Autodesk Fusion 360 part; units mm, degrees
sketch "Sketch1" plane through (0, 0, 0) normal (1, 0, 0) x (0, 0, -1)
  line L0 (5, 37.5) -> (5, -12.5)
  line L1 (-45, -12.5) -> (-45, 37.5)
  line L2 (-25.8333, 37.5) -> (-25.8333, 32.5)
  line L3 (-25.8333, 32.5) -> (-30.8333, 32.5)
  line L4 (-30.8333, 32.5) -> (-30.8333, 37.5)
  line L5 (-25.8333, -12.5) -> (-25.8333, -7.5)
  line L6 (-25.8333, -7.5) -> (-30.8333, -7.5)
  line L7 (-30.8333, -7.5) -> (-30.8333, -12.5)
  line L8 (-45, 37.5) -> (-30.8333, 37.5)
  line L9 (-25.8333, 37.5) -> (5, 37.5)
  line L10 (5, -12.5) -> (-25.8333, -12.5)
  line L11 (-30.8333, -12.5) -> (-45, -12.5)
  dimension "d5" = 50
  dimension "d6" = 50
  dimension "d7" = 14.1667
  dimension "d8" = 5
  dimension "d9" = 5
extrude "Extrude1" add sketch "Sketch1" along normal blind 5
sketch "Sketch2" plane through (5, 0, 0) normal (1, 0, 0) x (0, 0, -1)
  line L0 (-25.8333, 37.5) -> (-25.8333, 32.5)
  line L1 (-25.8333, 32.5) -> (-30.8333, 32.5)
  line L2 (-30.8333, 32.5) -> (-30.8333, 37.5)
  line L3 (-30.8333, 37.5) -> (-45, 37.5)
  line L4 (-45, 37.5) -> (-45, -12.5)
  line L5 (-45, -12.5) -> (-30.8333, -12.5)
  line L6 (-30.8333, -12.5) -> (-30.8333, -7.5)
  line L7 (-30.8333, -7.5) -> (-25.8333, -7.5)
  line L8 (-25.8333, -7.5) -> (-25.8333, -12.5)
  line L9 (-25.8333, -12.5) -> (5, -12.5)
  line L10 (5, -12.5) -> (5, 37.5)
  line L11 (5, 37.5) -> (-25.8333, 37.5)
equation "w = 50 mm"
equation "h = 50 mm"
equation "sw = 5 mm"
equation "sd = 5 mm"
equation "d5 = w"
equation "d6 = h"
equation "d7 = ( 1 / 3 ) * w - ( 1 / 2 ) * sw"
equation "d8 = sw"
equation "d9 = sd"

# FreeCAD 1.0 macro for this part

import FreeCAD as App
import Part
import Sketcher
from FreeCAD import Vector
Q = App.Units.Quantity


def add_polygon(sketch, points):
    """Adds a closed chain of lines whose ends are joined by coincident constraints."""
    first, n = sketch.GeometryCount, len(points)
    for a, b in zip(points, points[1:] + points[:1]):
        sketch.addGeometry(Part.LineSegment(App.Vector(*a, 0), App.Vector(*b, 0)), False)
    for i in range(n):
        sketch.addConstraint(Sketcher.Constraint("Coincident", first + i, 2, first + (i + 1) % n, 1))

doc = App.newDocument("Part")
body = doc.addObject("PartDesign::Body", "Body")

# Sketch on YZ plane
sketch1 = body.newObject("Sketcher::SketchObject", "Sketch")
sketch1.AttachmentSupport = (doc.getObject("YZ_Plane"), [""])
sketch1.MapMode = "FlatFace"
add_polygon(sketch1, [(-12.5, -5), (37.5, -5), (37.5, 25.8333), (32.5, 25.8333), (32.5, 30.8333), (37.5, 30.8333), (37.5, 45), (-12.5, 45), (-12.5, 30.8333), (-7.5, 30.8333), (-7.5, 25.8333), (-12.5, 25.8333)])  # lines 0-11
sketch1.addConstraint([
    Sketcher.Constraint("Horizontal", 0),
    Sketcher.Constraint("Vertical", 1),
    Sketcher.Constraint("Horizontal", 2),
    Sketcher.Constraint("Vertical", 3),
    Sketcher.Constraint("Horizontal", 4),
    Sketcher.Constraint("Vertical", 5),
    Sketcher.Constraint("Horizontal", 6),
    Sketcher.Constraint("Vertical", 7),
    Sketcher.Constraint("Horizontal", 8),
    Sketcher.Constraint("Vertical", 9),
    Sketcher.Constraint("Horizontal", 10),
    Sketcher.Constraint("Vertical", 11),
    Sketcher.Constraint("Horizontal", 4, 2, 7, 2),
    Sketcher.Constraint("Horizontal", 2, 2, 9, 2),
    Sketcher.Constraint("Vertical", 1, 2, 4, 2),
    Sketcher.Constraint("Vertical", 7, 2, 10, 2),
    Sketcher.Constraint("Equal", 4, 8),
    Sketcher.Constraint("Equal", 10, 3),
    Sketcher.Constraint("DistanceX", 0, 1, 0, 2, Q("50 mm")),
    Sketcher.Constraint("DistanceX", 2, 2, 2, 1, Q("5 mm")),
    Sketcher.Constraint("DistanceY", 0, 2, -1, 1, Q("5 mm")),
    Sketcher.Constraint("DistanceY", 0, 2, 5, 2, Q("50 mm")),
    Sketcher.Constraint("DistanceY", 5, 1, 5, 2, Q("14.1667 mm")),
    Sketcher.Constraint("DistanceX", -1, 1, 0, 2, Q("37.5 mm")),
])
pad1 = body.newObject("PartDesign::Pad", "Pad")
pad1.Profile = sketch1
pad1.Length = 5

doc.recompute()
